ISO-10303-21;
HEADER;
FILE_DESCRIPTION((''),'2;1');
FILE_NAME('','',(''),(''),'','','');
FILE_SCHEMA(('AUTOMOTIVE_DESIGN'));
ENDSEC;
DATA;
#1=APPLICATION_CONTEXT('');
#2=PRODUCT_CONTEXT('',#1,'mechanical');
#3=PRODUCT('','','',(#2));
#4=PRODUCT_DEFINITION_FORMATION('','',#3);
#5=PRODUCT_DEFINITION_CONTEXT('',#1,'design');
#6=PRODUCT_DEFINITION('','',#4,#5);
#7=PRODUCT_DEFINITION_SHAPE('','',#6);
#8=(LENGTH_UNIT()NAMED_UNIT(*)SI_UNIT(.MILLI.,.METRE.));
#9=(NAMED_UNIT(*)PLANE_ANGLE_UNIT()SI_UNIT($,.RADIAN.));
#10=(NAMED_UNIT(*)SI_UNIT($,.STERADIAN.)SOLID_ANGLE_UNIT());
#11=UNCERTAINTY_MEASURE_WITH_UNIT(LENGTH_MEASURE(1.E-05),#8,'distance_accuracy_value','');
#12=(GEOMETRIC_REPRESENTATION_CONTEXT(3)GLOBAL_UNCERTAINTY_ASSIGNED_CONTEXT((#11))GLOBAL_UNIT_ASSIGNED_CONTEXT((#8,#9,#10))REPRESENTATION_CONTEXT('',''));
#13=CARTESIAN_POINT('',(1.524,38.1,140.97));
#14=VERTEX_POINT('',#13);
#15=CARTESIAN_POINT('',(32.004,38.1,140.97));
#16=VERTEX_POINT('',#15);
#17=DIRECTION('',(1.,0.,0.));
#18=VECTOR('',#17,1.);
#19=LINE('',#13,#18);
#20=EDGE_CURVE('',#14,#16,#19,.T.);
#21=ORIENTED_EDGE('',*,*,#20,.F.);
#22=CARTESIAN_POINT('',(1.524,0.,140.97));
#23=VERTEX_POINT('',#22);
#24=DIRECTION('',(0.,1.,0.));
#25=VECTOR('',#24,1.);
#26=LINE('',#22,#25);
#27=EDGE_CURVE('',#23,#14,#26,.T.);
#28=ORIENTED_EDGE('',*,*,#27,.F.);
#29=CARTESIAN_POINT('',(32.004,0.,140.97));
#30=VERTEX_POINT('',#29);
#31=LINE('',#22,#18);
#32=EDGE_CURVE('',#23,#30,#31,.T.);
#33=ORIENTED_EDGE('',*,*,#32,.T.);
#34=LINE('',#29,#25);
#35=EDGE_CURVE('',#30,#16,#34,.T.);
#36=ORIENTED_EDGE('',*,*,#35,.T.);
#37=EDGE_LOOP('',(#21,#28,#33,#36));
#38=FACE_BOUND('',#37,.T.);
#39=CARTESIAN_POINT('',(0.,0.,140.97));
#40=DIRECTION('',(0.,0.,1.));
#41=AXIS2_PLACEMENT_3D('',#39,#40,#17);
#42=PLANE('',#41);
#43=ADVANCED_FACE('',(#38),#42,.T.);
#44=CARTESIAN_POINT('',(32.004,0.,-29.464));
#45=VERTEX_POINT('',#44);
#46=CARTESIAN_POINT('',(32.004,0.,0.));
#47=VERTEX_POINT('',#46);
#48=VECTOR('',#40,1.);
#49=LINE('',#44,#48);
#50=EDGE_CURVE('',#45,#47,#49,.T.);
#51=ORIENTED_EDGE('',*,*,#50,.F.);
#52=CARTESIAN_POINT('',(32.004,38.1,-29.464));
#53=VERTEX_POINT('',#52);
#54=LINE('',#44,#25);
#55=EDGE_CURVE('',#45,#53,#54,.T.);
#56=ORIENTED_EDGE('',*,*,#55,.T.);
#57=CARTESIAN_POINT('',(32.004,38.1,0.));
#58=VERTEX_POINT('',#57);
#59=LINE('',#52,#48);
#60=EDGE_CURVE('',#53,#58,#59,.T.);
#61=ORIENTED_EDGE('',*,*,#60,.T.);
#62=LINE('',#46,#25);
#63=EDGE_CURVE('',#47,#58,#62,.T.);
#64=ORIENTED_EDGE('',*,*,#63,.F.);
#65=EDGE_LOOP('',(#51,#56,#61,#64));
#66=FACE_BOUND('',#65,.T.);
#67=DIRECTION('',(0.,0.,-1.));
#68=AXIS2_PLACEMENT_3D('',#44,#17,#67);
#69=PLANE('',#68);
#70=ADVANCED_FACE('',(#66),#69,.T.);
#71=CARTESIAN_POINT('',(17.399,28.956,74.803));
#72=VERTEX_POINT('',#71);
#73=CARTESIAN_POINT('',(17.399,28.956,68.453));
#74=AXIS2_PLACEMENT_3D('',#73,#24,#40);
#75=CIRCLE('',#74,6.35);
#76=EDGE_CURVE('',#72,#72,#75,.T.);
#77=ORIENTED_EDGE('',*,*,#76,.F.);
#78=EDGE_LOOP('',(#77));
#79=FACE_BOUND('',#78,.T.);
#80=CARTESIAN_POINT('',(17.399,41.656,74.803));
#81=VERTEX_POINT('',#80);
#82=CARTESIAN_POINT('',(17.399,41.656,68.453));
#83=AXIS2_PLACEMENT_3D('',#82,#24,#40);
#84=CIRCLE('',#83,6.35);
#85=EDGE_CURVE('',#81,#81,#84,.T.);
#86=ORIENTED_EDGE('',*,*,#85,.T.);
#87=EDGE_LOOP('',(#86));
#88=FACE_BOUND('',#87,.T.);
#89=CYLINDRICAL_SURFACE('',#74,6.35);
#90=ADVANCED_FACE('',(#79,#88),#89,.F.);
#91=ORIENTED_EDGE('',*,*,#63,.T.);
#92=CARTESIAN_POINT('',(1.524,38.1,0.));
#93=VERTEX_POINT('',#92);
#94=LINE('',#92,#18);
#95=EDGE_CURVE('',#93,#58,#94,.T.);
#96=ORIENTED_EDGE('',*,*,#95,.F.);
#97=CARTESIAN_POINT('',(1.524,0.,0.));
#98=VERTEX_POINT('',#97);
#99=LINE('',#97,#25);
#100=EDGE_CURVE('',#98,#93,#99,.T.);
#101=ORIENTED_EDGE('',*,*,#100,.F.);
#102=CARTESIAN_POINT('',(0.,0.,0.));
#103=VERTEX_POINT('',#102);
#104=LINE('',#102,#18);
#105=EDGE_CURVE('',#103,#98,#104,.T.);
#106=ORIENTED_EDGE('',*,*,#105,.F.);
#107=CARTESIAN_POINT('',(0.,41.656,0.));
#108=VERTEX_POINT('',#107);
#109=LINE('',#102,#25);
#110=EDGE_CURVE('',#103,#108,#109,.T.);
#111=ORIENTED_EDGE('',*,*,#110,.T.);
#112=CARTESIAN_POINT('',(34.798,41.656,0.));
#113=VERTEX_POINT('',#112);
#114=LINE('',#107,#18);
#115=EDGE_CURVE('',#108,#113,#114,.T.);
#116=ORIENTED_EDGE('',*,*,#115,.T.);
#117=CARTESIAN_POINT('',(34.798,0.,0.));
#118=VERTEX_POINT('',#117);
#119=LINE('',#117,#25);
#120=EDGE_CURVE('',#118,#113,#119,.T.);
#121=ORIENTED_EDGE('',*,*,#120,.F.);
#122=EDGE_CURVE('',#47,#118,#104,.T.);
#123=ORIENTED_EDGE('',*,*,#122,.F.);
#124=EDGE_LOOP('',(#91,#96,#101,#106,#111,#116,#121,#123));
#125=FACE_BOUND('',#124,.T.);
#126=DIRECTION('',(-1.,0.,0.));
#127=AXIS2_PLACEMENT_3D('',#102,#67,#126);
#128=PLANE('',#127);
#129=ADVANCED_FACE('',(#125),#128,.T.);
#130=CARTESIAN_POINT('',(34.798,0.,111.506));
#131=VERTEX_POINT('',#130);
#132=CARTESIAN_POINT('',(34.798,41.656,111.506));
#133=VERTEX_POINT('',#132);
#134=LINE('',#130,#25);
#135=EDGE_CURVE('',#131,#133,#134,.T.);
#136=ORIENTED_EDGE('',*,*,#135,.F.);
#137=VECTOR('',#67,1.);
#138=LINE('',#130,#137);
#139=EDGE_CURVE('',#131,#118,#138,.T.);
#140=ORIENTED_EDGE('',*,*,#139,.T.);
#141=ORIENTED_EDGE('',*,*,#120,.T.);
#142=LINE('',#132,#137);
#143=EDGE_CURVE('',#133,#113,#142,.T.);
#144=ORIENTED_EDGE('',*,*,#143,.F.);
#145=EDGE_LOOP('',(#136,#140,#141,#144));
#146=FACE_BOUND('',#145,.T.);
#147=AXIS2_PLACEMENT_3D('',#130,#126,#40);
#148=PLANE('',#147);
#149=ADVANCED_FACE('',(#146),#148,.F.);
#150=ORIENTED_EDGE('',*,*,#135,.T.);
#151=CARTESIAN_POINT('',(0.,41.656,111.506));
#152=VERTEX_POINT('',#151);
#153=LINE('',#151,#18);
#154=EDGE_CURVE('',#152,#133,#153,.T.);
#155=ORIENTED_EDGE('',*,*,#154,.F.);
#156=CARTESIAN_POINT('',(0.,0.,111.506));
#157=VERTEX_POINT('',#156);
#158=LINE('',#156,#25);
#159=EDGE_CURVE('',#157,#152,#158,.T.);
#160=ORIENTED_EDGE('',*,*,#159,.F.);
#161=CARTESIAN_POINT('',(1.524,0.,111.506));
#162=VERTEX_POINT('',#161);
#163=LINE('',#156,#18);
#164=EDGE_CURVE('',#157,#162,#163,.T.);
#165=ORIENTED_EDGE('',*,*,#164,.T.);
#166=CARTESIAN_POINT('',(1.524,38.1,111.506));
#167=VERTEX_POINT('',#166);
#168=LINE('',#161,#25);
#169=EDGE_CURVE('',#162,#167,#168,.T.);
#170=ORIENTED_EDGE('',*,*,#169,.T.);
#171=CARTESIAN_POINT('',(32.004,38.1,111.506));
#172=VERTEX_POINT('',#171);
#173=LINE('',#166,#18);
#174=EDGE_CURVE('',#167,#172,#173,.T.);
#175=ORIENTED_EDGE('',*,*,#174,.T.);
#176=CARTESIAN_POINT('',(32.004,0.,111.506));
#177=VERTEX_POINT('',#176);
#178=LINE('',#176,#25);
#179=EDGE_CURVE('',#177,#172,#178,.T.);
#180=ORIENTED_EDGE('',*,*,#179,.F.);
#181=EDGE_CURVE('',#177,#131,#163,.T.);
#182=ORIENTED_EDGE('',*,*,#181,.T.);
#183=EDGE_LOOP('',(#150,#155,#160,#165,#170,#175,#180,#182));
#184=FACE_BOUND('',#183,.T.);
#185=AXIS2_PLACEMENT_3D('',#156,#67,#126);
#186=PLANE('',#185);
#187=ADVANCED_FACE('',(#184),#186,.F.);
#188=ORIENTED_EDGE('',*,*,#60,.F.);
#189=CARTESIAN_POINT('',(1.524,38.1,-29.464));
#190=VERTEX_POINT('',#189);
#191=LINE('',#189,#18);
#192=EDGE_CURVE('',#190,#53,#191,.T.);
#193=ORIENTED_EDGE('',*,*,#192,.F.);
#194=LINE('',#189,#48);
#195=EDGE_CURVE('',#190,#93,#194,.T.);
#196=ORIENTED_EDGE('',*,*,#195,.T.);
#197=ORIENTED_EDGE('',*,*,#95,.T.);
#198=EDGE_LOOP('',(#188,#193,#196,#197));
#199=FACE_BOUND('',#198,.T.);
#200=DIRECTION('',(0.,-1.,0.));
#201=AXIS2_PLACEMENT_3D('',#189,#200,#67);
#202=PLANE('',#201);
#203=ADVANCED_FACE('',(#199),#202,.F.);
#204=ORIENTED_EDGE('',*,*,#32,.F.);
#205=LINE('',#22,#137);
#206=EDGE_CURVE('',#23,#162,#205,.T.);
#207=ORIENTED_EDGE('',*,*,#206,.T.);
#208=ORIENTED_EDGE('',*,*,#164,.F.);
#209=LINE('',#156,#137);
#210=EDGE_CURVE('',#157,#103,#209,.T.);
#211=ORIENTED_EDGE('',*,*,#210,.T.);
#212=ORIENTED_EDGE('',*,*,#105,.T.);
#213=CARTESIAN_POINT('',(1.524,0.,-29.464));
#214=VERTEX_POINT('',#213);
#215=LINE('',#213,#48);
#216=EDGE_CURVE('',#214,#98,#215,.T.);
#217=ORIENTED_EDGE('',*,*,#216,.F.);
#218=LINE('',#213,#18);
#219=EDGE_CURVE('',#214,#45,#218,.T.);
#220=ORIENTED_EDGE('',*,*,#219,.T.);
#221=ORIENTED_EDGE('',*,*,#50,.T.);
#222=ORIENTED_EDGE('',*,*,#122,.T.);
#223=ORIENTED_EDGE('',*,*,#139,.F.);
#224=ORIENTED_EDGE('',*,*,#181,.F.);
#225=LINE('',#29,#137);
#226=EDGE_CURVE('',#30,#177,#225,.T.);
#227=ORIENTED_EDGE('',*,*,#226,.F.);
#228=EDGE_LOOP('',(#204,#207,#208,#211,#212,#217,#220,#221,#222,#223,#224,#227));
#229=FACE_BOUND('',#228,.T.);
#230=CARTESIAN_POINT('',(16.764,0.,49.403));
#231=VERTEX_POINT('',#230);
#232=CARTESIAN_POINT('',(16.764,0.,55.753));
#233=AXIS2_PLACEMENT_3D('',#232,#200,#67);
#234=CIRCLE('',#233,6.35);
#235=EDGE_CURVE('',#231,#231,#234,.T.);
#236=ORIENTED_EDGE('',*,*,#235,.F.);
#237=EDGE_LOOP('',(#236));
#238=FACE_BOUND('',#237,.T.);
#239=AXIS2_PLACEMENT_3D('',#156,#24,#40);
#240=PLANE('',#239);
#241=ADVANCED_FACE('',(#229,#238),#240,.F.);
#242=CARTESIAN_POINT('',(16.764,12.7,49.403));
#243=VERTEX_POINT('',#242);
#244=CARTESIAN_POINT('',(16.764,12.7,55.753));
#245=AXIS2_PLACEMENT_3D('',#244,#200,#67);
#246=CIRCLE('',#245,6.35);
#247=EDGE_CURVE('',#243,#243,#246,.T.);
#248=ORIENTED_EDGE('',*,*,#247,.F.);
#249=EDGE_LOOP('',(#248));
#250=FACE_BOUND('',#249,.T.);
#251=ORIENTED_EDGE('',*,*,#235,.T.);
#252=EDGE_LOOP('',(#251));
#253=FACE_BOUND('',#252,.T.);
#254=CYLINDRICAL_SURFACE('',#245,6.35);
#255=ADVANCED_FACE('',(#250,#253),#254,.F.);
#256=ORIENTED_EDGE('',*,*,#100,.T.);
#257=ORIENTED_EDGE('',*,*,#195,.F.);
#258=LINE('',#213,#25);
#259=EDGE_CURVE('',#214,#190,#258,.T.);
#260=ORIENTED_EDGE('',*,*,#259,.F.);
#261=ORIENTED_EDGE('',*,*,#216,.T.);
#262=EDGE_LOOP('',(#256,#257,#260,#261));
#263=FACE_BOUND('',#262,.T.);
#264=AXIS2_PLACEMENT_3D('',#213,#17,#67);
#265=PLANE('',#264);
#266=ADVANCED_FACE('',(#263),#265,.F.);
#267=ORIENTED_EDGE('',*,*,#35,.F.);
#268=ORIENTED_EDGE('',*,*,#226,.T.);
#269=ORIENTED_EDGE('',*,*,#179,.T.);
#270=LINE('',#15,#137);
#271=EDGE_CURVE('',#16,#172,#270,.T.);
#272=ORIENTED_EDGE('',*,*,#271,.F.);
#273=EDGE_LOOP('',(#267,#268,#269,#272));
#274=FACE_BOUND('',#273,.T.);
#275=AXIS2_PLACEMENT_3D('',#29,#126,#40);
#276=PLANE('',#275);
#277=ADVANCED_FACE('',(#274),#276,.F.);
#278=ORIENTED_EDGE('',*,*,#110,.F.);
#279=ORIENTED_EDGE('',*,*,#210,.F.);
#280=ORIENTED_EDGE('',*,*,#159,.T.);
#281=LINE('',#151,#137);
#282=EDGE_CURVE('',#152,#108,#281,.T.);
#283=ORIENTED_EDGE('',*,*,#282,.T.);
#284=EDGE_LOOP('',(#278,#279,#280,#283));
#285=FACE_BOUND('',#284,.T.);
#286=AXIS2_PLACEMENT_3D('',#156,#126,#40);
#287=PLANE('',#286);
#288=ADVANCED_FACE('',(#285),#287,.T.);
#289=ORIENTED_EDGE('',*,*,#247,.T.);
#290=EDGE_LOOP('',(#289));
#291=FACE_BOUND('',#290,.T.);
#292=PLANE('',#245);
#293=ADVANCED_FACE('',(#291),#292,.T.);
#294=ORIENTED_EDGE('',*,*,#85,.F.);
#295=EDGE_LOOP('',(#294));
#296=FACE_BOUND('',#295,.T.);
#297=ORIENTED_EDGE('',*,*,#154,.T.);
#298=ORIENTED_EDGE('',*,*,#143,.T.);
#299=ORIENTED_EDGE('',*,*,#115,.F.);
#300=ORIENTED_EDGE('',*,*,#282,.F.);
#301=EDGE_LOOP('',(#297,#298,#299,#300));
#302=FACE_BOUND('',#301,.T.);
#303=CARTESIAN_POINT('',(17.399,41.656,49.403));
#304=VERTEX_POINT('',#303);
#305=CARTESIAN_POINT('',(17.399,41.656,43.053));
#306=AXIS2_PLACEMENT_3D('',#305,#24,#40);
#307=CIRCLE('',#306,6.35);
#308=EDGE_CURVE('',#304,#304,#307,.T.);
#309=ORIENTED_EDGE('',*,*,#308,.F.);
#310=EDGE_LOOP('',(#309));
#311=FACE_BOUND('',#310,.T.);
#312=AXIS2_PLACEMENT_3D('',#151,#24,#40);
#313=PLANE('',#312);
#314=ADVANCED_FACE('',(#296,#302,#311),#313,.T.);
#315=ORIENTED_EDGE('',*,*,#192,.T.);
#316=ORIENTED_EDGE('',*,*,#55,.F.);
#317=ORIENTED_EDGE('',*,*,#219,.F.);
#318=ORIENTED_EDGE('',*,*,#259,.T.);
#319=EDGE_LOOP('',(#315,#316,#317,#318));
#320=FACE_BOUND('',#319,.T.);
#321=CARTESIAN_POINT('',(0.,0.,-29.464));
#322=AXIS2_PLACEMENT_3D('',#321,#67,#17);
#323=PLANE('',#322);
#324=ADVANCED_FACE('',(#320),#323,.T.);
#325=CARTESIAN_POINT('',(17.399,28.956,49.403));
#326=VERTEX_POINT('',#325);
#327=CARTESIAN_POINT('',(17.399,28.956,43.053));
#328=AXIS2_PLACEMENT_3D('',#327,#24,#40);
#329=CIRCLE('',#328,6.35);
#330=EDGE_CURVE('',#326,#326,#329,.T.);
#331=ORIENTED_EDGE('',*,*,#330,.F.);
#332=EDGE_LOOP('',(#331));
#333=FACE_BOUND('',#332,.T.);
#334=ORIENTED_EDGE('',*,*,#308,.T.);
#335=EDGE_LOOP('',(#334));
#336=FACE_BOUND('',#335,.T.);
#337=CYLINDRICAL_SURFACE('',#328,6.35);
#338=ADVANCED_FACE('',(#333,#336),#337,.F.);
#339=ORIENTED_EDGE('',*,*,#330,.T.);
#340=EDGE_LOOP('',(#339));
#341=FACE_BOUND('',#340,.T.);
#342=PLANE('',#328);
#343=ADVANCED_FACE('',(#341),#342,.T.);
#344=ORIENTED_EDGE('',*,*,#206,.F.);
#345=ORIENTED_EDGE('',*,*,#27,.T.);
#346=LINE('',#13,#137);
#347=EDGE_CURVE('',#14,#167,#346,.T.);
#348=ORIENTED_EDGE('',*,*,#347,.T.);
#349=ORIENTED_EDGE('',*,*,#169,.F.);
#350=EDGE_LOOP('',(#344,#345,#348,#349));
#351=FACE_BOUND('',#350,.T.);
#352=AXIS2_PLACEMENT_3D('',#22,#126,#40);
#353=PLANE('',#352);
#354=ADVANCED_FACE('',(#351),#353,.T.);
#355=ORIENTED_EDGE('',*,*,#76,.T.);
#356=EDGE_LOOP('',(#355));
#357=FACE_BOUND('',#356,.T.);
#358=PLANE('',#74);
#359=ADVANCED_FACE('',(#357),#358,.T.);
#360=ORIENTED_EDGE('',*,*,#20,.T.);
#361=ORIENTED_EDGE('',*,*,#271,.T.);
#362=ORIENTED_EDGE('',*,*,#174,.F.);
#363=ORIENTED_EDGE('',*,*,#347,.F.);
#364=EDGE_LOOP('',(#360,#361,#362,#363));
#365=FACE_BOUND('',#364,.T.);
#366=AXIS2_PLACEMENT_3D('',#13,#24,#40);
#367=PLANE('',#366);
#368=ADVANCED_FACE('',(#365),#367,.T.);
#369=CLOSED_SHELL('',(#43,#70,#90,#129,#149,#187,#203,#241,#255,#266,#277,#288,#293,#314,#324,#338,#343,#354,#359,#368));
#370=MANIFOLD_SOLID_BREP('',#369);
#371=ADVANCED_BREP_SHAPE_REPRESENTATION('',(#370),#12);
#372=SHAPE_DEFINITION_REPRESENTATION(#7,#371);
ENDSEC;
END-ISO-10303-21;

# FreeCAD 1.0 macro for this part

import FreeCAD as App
import Part
import Sketcher

V = App.Vector
Q = App.Units.Quantity

doc = App.newDocument("Part")
body = doc.addObject("PartDesign::Body", "Body")

sketch1 = body.newObject("Sketcher::SketchObject", "Sketch")
sketch1.AttachmentSupport = (doc.getObject("XY_Plane"), [""])
sketch1.MapMode = "FlatFace"
sketch1.addGeometry(Part.LineSegment(V(0, 42, 0), V(0, 0, 0)), False)
sketch1.addGeometry(Part.LineSegment(V(0, 0, 0), V(35, 0, 0)), False)
sketch1.addGeometry(Part.LineSegment(V(35, 0, 0), V(35, 42, 0)), False)
sketch1.addGeometry(Part.LineSegment(V(35, 42, 0), V(0, 42, 0)), False)
sketch1.addConstraint(Sketcher.Constraint("Coincident", 0, 2, 1, 1))
sketch1.addConstraint(Sketcher.Constraint("Coincident", 1, 2, 2, 1))
sketch1.addConstraint(Sketcher.Constraint("Coincident", 2, 2, 3, 1))
sketch1.addConstraint(Sketcher.Constraint("Coincident", 3, 2, 0, 1))
sketch1.addConstraint(Sketcher.Constraint("Vertical", 0))
sketch1.addConstraint(Sketcher.Constraint("Horizontal", 1))
sketch1.addConstraint(Sketcher.Constraint("Vertical", 2))
sketch1.addConstraint(Sketcher.Constraint("Horizontal", 3))
sketch1.addConstraint(Sketcher.Constraint("Coincident", 0, 2, -1, 1))
sketch1.addConstraint(Sketcher.Constraint("DistanceX", 1, 1, 1, 2, Q("1.37 in")))
sketch1.addConstraint(Sketcher.Constraint("DistanceY", 0, 2, 0, 1, Q("1.64 in")))
pad1 = body.newObject("PartDesign::Pad", "Pad")
pad1.Profile = sketch1
pad1.Length = Q("4.39 in")

sketch2 = body.newObject("Sketcher::SketchObject", "Sketch001")
sketch2.AttachmentSupport = (doc.getObject("XY_Plane"), [""])
sketch2.MapMode = "FlatFace"
sketch2.AttachmentOffset = App.Placement(V(0, 0, 4.39 * 25.4), App.Rotation())
sketch2.addGeometry(Part.LineSegment(V(2, 38, 0), V(2, 0, 0)), False)
sketch2.addGeometry(Part.LineSegment(V(2, 0, 0), V(32, 0, 0)), False)
sketch2.addGeometry(Part.LineSegment(V(32, 0, 0), V(32, 38, 0)), False)
sketch2.addGeometry(Part.LineSegment(V(32, 38, 0), V(2, 38, 0)), False)
sketch2.addConstraint(Sketcher.Constraint("Coincident", 0, 2, 1, 1))
sketch2.addConstraint(Sketcher.Constraint("Coincident", 1, 2, 2, 1))
sketch2.addConstraint(Sketcher.Constraint("Coincident", 2, 2, 3, 1))
sketch2.addConstraint(Sketcher.Constraint("Coincident", 3, 2, 0, 1))
sketch2.addConstraint(Sketcher.Constraint("Vertical", 0))
sketch2.addConstraint(Sketcher.Constraint("Horizontal", 1))
sketch2.addConstraint(Sketcher.Constraint("Vertical", 2))
sketch2.addConstraint(Sketcher.Constraint("Horizontal", 3))
sketch2.addConstraint(Sketcher.Constraint("PointOnObject", 0, 2, -1))
sketch2.addConstraint(Sketcher.Constraint("DistanceX", 1, 1, 1, 2, Q("1.2 in")))
sketch2.addConstraint(Sketcher.Constraint("DistanceY", 0, 2, 0, 1, Q("1.5 in")))
sketch2.addConstraint(Sketcher.Constraint("DistanceX", -1, 1, 0, 2, Q("0.06 in")))
pad2 = body.newObject("PartDesign::Pad", "Pad001")
pad2.Profile = sketch2
pad2.Length = Q("1.16 in")
doc.recompute()

datumplane = body.newObject("PartDesign::Plane", "DatumPlane")
datumplane.AttachmentSupport = (doc.getObject("XY_Plane"), [""])
datumplane.MapMode = "FlatFace"
datumplane.AttachmentOffset = App.Placement(V(0, 0, 2.195 * 25.4), App.Rotation())
mirrored = body.newObject("PartDesign::Mirrored", "Mirrored")
mirrored.Originals = [pad2]
mirrored.MirrorPlane = (datumplane, [""])
body.Tip = mirrored

sketch3 = body.newObject("Sketcher::SketchObject", "Sketch002")
sketch3.AttachmentSupport = (doc.getObject("XZ_Plane"), [""])
sketch3.MapMode = "FlatFace"
sketch3.addGeometry(Part.Circle(V(17, 56, 0), V(0, 0, 1), 6), False)
sketch3.addConstraint(Sketcher.Constraint("Diameter", 0, Q("0.5 in")))
sketch3.addConstraint(Sketcher.Constraint("DistanceX", -1, 1, 0, 3, Q("0.66 in")))
sketch3.addConstraint(Sketcher.Constraint("DistanceY", -1, 1, 0, 3, Q("2.195 in")))
pocket1 = body.newObject("PartDesign::Pocket", "Pocket")
pocket1.Profile = sketch3
pocket1.Length = Q("0.5 in")

sketch4 = body.newObject("Sketcher::SketchObject", "Sketch003")
sketch4.AttachmentSupport = (doc.getObject("XZ_Plane"), [""])
sketch4.MapMode = "FlatFace"
sketch4.AttachmentOffset = App.Placement(V(0, 0, -1.64 * 25.4), App.Rotation())
sketch4.addGeometry(Part.Circle(V(17, 43, 0), V(0, 0, 1), 6), False)
sketch4.addGeometry(Part.Circle(V(17, 68, 0), V(0, 0, 1), 6), False)
sketch4.addConstraint(Sketcher.Constraint("Equal", 0, 1))
sketch4.addConstraint(Sketcher.Constraint("Vertical", 0, 3, 1, 3))
sketch4.addConstraint(Sketcher.Constraint("Diameter", 0, Q("0.5 in")))
sketch4.addConstraint(Sketcher.Constraint("DistanceY", 0, 3, 1, 3, Q("1 in")))
sketch4.addConstraint(Sketcher.Constraint("DistanceX", -1, 1, 0, 3, Q("0.685 in")))
sketch4.addConstraint(Sketcher.Constraint("DistanceY", -1, 1, 0, 3, Q("1.695 in")))
pocket2 = body.newObject("PartDesign::Pocket", "Pocket001")
pocket2.Profile = sketch4
pocket2.Length = Q("0.5 in")
pocket2.Reversed = True

doc.recompute()
